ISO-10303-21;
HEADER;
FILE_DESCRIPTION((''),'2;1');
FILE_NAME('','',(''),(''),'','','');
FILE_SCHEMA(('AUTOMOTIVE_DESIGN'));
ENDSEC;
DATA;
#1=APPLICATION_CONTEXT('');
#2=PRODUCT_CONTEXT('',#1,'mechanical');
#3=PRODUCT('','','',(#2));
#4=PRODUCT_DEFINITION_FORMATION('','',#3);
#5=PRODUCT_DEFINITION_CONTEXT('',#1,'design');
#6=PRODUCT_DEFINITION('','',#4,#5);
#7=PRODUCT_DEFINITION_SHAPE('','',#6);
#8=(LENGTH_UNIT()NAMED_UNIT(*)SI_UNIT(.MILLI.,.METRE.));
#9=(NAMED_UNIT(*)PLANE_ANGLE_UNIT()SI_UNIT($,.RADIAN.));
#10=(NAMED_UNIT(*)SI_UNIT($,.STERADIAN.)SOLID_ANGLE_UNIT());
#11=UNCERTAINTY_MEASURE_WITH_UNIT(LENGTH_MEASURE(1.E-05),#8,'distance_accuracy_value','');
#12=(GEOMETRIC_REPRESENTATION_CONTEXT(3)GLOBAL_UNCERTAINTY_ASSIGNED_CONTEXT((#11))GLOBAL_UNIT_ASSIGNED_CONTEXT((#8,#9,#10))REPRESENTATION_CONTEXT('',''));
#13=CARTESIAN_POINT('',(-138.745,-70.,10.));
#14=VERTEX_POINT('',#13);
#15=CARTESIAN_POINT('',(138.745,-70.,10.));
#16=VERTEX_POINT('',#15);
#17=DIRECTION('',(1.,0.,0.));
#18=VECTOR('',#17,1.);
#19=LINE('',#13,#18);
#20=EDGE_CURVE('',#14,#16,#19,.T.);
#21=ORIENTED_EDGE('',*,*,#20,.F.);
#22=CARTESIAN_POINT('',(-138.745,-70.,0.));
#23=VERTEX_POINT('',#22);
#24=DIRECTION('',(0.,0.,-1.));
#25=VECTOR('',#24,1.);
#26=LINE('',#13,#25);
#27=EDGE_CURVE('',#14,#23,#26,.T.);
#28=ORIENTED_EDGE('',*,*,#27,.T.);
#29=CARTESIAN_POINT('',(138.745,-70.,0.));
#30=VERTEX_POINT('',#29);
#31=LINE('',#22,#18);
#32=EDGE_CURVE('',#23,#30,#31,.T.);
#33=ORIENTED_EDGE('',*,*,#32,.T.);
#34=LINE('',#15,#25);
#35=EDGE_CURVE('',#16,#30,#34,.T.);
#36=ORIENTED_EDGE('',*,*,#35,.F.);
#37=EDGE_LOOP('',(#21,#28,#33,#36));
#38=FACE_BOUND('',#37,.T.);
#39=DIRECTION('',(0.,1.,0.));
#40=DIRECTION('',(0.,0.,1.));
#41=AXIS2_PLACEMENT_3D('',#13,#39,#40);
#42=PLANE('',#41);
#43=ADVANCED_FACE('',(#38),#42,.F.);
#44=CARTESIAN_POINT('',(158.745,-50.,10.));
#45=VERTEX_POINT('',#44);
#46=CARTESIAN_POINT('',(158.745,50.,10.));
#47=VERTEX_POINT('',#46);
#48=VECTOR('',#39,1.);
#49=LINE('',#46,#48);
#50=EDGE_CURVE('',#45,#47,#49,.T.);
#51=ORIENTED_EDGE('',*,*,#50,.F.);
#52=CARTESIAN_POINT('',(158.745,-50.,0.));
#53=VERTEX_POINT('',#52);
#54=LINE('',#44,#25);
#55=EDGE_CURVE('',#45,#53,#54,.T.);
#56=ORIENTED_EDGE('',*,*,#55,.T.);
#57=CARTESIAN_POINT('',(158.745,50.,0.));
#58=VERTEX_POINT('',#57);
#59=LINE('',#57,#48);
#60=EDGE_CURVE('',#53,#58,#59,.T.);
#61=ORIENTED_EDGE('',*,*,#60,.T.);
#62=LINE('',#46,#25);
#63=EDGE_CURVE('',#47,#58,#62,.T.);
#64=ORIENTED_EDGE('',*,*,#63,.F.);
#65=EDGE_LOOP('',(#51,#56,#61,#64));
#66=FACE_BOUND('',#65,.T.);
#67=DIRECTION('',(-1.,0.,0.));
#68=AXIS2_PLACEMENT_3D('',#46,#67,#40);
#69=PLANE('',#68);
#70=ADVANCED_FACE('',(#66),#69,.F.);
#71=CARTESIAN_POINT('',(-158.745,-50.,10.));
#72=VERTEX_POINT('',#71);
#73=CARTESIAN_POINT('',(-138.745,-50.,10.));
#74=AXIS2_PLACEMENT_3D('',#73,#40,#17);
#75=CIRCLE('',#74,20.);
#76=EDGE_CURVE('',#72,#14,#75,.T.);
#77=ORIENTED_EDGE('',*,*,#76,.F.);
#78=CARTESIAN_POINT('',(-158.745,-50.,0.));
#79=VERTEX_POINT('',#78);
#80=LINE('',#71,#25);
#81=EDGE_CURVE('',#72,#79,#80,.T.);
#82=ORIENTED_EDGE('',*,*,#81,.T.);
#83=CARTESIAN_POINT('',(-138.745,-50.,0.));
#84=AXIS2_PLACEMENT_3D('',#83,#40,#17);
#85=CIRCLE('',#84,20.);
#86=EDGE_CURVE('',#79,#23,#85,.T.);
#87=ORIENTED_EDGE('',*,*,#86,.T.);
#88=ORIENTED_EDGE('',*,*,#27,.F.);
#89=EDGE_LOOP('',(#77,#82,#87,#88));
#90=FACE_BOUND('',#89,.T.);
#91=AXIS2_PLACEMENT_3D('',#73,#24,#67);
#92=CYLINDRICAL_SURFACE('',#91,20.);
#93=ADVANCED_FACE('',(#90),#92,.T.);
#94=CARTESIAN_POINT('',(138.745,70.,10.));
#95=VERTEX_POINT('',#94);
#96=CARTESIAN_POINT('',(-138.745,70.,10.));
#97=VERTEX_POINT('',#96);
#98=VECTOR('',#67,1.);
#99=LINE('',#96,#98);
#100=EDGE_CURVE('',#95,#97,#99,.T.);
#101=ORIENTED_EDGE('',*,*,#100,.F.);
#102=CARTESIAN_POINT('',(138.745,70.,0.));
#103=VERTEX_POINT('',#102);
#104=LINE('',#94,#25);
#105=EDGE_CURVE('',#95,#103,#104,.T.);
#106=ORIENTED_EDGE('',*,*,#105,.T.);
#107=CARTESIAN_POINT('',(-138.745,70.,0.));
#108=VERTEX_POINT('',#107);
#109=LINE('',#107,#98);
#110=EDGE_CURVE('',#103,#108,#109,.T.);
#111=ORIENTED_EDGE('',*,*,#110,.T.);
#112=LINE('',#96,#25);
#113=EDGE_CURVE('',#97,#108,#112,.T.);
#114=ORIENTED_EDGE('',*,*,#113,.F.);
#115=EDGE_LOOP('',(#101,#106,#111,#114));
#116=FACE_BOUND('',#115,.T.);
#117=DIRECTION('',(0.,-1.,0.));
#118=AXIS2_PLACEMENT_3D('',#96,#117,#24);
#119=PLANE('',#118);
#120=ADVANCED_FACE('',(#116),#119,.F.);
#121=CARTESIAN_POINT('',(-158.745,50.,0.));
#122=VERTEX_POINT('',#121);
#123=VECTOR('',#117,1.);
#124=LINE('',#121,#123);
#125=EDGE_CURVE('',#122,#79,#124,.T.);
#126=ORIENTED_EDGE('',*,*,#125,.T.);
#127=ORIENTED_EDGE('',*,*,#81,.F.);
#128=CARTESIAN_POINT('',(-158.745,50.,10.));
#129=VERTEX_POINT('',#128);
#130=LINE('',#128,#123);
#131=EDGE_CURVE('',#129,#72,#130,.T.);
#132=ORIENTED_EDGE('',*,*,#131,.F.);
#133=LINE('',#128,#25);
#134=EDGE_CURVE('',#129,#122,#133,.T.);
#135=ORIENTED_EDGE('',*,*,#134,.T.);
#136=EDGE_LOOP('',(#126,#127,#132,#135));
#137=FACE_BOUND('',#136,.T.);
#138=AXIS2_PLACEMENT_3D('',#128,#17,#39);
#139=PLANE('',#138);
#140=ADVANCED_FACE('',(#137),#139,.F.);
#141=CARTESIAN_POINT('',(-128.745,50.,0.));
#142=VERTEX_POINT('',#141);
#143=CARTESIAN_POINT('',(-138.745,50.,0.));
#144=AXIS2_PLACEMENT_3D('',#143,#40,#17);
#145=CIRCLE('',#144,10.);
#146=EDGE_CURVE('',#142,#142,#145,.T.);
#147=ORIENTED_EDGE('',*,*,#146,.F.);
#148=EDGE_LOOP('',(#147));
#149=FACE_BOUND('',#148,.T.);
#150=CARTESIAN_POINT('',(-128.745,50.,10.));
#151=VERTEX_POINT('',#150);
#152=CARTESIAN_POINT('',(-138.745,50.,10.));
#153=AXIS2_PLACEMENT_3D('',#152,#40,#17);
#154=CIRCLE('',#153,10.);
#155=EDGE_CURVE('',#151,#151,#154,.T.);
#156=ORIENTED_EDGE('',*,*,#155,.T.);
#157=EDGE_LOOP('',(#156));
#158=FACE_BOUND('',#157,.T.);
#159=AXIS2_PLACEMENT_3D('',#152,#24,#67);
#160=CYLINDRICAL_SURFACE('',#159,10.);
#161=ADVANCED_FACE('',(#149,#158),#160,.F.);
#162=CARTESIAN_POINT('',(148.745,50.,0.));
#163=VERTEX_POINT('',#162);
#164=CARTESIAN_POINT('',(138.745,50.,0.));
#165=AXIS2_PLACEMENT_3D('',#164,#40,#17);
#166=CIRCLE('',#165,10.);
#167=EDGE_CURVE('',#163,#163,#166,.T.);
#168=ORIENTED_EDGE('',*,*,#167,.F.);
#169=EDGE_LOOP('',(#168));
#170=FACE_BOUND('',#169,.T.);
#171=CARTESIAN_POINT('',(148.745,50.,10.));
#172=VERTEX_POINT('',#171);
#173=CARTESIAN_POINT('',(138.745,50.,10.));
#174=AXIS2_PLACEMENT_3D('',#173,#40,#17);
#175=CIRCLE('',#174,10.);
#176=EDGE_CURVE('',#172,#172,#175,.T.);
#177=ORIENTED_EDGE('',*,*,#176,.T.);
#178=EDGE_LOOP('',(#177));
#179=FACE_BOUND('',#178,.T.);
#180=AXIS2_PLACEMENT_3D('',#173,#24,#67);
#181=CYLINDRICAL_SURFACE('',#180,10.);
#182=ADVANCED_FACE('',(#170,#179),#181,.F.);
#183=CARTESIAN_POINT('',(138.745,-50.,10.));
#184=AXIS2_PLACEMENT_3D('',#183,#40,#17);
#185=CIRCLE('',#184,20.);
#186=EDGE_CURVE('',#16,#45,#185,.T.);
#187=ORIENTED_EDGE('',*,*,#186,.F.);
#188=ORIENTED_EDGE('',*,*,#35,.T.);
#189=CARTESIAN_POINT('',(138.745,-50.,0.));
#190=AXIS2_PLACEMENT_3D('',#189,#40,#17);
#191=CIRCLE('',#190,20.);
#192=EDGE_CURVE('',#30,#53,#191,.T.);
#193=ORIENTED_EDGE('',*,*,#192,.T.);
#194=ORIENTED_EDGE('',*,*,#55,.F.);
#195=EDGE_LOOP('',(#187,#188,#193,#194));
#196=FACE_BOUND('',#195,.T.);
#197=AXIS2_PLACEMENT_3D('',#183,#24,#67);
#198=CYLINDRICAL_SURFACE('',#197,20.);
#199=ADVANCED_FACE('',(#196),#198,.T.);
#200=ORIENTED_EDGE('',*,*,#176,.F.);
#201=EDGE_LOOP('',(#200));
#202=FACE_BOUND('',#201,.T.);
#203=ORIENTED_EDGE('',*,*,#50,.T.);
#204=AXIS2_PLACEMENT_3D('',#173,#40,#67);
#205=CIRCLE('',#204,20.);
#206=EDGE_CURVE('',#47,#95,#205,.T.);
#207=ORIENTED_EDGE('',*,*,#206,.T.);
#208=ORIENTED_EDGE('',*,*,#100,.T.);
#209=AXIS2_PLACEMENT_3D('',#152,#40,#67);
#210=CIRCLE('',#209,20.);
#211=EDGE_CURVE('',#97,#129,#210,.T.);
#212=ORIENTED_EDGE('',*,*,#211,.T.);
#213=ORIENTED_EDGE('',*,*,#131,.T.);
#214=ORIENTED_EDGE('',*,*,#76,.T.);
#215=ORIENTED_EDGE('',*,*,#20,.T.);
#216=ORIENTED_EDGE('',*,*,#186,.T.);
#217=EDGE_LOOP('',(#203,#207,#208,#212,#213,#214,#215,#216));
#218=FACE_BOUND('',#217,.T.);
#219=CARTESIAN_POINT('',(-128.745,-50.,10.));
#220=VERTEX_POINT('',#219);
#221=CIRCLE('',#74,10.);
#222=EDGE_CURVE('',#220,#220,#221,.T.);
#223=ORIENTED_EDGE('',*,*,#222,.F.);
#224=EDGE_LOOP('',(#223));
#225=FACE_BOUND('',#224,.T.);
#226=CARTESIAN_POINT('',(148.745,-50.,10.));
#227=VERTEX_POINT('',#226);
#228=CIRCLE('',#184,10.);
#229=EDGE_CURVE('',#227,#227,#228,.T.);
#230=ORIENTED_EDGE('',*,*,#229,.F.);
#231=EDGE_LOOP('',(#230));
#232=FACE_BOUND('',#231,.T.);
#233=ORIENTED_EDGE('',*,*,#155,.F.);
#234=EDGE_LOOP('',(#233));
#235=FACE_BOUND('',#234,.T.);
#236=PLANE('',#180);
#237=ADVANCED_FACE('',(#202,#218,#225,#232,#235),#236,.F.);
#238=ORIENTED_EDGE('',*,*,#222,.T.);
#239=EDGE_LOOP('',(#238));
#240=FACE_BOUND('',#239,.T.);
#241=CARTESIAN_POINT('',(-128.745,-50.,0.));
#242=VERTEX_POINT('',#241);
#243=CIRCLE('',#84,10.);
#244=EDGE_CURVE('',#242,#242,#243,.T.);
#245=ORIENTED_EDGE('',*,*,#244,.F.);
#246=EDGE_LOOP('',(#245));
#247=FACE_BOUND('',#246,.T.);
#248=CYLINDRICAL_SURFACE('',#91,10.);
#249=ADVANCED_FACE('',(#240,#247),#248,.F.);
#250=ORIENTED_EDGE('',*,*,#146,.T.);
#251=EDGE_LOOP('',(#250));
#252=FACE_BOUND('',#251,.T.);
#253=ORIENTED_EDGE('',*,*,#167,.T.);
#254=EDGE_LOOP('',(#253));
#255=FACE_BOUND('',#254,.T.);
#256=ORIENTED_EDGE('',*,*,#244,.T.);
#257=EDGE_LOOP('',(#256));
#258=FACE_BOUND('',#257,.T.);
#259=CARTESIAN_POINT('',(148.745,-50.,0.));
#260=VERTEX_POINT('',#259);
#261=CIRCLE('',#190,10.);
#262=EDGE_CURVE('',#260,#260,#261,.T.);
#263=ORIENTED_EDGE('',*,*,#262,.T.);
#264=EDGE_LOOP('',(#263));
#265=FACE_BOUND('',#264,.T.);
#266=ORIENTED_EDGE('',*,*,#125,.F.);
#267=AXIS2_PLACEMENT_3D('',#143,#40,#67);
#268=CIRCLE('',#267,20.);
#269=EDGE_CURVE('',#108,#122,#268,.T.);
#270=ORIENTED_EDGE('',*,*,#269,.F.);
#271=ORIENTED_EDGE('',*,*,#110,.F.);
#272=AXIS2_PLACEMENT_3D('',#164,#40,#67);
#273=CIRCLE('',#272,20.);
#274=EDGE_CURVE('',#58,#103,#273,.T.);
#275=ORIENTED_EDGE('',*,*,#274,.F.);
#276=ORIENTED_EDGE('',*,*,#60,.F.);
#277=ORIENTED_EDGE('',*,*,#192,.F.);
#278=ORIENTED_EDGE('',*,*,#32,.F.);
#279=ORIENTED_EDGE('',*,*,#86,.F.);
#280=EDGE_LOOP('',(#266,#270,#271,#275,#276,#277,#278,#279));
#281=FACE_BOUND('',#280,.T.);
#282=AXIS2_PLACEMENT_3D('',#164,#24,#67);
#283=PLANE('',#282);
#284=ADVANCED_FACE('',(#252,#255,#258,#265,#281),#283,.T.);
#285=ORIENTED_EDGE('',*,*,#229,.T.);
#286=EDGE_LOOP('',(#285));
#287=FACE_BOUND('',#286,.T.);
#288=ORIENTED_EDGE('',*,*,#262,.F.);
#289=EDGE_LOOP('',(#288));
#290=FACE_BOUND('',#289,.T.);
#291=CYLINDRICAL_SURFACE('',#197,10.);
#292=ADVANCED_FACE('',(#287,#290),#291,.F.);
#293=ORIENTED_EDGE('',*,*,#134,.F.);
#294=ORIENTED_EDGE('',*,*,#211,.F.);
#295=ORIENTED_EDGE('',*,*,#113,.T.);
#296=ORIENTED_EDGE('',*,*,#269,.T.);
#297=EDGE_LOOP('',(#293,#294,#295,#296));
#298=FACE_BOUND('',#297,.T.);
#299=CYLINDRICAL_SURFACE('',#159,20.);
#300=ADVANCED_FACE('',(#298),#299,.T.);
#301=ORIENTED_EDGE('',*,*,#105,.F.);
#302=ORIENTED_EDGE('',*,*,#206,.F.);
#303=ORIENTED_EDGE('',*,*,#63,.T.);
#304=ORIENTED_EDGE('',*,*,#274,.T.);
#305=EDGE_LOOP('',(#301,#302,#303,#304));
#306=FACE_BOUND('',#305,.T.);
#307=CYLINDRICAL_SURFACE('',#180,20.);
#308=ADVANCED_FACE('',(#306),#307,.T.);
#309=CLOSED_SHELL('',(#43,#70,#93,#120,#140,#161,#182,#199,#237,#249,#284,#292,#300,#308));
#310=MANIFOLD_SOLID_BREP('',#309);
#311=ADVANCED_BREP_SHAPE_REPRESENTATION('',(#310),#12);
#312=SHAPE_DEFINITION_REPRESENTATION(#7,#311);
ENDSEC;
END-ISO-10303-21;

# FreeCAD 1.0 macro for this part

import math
import FreeCAD as App
import Part
import Sketcher

doc = App.newDocument("Part")
body = doc.addObject("PartDesign::Body", "Body")

sketch1 = body.newObject("Sketcher::SketchObject", "Sketch")
sketch1.AttachmentSupport = (doc.getObject("XY_Plane"), [""])
sketch1.MapMode = "FlatFace"
sketch1.addGeometry([
    Part.LineSegment(App.Vector(139, 70, 0), App.Vector(-139, 70, 0)),
    Part.ArcOfCircle(Part.Circle(App.Vector(-139, 50, 0), App.Vector(0, 0, 1), 20), math.radians(90), math.radians(180)),
    Part.LineSegment(App.Vector(-159, 50, 0), App.Vector(-159, -50, 0)),
    Part.ArcOfCircle(Part.Circle(App.Vector(-139, -50, 0), App.Vector(0, 0, 1), 20), math.radians(180), math.radians(270)),
    Part.LineSegment(App.Vector(-139, -70, 0), App.Vector(139, -70, 0)),
    Part.ArcOfCircle(Part.Circle(App.Vector(139, -50, 0), App.Vector(0, 0, 1), 20), math.radians(-90), math.radians(0)),
    Part.LineSegment(App.Vector(159, -50, 0), App.Vector(159, 50, 0)),
    Part.ArcOfCircle(Part.Circle(App.Vector(139, 50, 0), App.Vector(0, 0, 1), 20), math.radians(0), math.radians(90)),
    Part.Circle(App.Vector(139, -50, 0), App.Vector(0, 0, 1), 10),
    Part.Circle(App.Vector(-139, -50, 0), App.Vector(0, 0, 1), 10),
    Part.Circle(App.Vector(139, 50, 0), App.Vector(0, 0, 1), 10),
    Part.Circle(App.Vector(-139, 50, 0), App.Vector(0, 0, 1), 10),
], False)
sketch1.addConstraint([
    Sketcher.Constraint("Tangent", 0, 2, 1, 1),
    Sketcher.Constraint("Tangent", 1, 2, 2, 1),
    Sketcher.Constraint("Tangent", 2, 2, 3, 1),
    Sketcher.Constraint("Tangent", 3, 2, 4, 1),
    Sketcher.Constraint("Tangent", 4, 2, 5, 1),
    Sketcher.Constraint("Tangent", 5, 2, 6, 1),
    Sketcher.Constraint("Tangent", 6, 2, 7, 1),
    Sketcher.Constraint("Tangent", 7, 2, 0, 1),
    Sketcher.Constraint("Horizontal", 0),
    Sketcher.Constraint("Vertical", 2),
    Sketcher.Constraint("Horizontal", 4),
    Sketcher.Constraint("Vertical", 6),
    Sketcher.Constraint("Coincident", 8, 3, 5, 3),
    Sketcher.Constraint("Coincident", 9, 3, 3, 3),
    Sketcher.Constraint("Coincident", 10, 3, 7, 3),
    Sketcher.Constraint("Coincident", 11, 3, 1, 3),
    Sketcher.Constraint("Equal", 1, 3),
    Sketcher.Constraint("Equal", 3, 5),
    Sketcher.Constraint("Equal", 5, 7),
    Sketcher.Constraint("Equal", 8, 9),
    Sketcher.Constraint("Equal", 9, 10),
    Sketcher.Constraint("Equal", 10, 11),
    Sketcher.Constraint("Symmetric", 1, 3, 5, 3, -1, 1),
    Sketcher.Constraint("Diameter", 8, 20.0),
    Sketcher.Constraint("Radius", 1, 20.0),
    Sketcher.Constraint("DistanceY", 2, 2, 2, 1, 100.0),
    Sketcher.Constraint("DistanceX", 0, 2, 0, 1, 277.49),
])
pad1 = body.newObject("PartDesign::Pad", "Pad")
pad1.Profile = sketch1
pad1.Length = 10

doc.recompute()
